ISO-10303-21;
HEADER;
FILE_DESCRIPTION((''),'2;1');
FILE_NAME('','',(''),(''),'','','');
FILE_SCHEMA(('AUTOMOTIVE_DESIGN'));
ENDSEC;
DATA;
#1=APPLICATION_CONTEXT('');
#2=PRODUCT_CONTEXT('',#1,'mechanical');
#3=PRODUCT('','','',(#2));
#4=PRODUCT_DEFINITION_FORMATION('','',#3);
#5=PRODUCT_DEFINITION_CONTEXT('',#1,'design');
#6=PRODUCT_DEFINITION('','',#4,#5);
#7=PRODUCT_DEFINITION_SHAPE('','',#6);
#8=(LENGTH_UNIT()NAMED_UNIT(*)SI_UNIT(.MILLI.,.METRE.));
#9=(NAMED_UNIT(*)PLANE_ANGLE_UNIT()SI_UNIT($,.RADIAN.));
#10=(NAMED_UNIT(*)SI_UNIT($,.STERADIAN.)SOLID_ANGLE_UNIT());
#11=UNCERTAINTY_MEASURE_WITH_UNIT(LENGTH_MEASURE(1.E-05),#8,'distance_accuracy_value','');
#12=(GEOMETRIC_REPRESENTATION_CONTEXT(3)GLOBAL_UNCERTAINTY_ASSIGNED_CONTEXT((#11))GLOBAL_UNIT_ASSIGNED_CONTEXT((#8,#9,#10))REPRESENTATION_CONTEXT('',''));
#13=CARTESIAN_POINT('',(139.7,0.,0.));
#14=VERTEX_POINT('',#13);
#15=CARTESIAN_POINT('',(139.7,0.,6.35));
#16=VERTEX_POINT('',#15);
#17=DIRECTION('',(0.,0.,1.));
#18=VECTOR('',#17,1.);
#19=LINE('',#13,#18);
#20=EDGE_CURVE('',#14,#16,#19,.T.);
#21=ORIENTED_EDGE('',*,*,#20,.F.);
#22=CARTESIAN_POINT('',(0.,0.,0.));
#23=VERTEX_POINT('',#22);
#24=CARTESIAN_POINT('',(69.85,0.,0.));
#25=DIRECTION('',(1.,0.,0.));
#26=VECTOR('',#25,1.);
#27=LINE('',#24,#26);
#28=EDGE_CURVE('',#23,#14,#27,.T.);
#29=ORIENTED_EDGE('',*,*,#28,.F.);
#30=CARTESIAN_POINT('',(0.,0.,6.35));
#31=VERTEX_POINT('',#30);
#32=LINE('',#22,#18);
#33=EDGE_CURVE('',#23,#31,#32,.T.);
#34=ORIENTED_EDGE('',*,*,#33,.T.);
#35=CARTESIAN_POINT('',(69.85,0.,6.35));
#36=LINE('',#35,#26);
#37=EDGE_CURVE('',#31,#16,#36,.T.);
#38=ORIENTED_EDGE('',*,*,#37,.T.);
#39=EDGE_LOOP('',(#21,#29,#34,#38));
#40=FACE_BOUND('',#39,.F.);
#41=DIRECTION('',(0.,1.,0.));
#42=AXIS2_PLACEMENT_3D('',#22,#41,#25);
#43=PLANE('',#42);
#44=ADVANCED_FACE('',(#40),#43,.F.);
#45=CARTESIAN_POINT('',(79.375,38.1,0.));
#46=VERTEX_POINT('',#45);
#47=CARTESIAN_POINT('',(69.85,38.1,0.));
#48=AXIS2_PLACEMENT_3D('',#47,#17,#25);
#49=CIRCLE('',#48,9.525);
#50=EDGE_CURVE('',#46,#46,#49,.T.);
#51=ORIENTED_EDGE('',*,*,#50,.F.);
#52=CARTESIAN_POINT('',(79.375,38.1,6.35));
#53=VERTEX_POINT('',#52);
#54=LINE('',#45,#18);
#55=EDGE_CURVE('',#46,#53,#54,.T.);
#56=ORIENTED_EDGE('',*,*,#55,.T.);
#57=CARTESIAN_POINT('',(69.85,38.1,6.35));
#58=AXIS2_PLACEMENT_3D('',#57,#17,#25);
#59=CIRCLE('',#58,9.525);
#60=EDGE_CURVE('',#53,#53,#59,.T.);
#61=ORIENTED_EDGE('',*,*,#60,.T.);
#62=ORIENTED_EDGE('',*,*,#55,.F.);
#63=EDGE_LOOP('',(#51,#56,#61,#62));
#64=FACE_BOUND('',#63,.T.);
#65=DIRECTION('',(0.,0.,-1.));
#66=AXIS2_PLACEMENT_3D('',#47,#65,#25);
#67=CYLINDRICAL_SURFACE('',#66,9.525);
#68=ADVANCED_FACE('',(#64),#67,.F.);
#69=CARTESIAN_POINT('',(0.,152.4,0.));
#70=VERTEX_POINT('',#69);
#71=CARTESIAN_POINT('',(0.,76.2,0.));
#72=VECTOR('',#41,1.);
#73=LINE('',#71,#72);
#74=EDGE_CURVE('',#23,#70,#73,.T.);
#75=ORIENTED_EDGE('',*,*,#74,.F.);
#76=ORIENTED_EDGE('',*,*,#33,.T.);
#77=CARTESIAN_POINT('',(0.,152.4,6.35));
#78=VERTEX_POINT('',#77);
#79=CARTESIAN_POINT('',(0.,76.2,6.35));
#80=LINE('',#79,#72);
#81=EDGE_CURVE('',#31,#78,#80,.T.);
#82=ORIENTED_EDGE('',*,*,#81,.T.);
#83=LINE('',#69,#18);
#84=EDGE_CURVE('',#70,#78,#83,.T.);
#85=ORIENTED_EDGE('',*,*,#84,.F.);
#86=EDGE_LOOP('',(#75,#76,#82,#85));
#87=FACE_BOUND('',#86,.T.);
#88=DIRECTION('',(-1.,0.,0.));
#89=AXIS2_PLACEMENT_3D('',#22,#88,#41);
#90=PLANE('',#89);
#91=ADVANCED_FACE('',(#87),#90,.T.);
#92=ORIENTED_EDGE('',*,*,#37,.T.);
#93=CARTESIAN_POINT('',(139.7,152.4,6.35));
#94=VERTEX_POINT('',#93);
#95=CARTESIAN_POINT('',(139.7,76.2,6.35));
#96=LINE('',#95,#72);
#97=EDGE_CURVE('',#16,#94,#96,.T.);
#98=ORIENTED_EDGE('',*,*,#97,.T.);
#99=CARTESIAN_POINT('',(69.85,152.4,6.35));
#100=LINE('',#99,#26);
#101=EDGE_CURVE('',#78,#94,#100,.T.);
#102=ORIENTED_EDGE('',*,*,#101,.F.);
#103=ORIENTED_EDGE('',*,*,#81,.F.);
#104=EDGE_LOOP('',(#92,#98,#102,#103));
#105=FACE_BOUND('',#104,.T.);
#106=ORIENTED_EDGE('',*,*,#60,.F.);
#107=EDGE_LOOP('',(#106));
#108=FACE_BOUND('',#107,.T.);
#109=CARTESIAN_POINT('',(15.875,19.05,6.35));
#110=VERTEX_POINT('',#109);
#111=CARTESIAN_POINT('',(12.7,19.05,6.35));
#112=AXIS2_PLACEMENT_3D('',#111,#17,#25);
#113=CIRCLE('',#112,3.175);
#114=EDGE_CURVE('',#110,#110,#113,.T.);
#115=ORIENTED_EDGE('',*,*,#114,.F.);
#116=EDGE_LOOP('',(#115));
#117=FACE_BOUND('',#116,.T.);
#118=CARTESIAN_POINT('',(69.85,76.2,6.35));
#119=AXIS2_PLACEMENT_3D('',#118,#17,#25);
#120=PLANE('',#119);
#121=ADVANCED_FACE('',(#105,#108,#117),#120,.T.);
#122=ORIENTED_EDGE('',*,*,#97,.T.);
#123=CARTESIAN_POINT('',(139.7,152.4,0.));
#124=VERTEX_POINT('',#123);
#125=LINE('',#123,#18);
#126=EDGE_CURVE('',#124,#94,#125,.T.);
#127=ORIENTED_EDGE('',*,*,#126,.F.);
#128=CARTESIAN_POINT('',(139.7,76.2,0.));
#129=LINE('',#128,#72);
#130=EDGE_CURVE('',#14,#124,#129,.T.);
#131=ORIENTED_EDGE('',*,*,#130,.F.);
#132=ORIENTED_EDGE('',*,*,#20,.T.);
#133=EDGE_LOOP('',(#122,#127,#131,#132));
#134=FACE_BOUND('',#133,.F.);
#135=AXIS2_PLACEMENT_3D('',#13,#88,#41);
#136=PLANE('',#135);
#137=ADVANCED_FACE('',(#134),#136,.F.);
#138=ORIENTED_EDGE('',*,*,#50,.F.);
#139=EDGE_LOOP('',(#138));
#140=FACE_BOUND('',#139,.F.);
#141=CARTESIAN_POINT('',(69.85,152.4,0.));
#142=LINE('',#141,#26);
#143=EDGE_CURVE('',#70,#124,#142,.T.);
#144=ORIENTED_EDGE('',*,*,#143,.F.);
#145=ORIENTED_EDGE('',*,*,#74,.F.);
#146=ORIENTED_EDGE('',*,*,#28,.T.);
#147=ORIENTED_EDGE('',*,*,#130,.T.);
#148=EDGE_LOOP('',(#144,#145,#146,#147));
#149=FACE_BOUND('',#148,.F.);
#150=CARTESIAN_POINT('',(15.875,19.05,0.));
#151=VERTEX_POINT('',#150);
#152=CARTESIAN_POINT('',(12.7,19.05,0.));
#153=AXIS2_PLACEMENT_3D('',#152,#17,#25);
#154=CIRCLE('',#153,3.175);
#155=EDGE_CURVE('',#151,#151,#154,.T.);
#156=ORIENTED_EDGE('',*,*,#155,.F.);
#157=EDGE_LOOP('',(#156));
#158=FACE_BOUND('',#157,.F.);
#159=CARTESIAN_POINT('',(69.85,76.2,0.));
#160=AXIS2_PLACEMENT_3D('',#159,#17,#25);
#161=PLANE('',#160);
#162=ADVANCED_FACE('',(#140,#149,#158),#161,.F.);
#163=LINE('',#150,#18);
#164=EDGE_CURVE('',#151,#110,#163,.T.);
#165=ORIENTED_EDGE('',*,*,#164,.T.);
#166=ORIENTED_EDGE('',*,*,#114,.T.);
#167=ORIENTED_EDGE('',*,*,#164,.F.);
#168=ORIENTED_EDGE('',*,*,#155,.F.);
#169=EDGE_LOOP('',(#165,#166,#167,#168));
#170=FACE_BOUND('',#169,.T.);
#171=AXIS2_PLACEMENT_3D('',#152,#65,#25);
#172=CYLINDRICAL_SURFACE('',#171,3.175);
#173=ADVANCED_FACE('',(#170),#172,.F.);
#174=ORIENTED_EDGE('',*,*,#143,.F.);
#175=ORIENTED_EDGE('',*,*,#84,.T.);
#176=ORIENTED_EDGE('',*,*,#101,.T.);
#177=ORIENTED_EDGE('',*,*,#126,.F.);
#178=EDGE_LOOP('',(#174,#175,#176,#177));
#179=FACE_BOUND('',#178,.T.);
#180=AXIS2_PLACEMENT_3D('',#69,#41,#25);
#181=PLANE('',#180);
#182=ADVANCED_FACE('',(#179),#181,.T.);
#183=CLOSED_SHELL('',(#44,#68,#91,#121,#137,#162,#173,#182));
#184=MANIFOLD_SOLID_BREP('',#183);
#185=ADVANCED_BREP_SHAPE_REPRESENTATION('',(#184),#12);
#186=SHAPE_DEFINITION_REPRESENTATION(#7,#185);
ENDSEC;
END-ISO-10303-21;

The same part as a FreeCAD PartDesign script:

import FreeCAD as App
import Part
import Sketcher

V = App.Vector
Q = App.Units.Quantity

doc = App.newDocument("Part")
params = doc.addObject("Spreadsheet::Sheet", "Params")
for row, (alias, value) in enumerate([
    ("sketch1_diameter", "0.25 in"),
    ("sketch1_diameter2", "0.75 in"),
    ("sketch1_height", "6 in"),
    ("sketch1_width", "5.5 in"),
    ("pad1_length", "0.25 in"),
], start=1):
    params.set(f"A{row}", alias)
    params.set(f"B{row}", "=" + value)
    params.setAlias(f"B{row}", alias)

body = doc.addObject("PartDesign::Body", "Body")

sketch1 = body.newObject("Sketcher::SketchObject", "Sketch")
sketch1.AttachmentSupport = (doc.getObject("XY_Plane"), [""])
sketch1.MapMode = "FlatFace"
sketch1.addGeometry([
    Part.LineSegment(V(0, 152.4, 0), V(0, 0, 0)),
    Part.LineSegment(V(0, 0, 0), V(139.7, 0, 0)),
    Part.LineSegment(V(139.7, 0, 0), V(139.7, 152.4, 0)),
    Part.LineSegment(V(139.7, 152.4, 0), V(0, 152.4, 0)),
    Part.Circle(V(12.7, 19.05, 0), V(0, 0, 1), 3.175),
    Part.Circle(V(69.85, 38.1, 0), V(0, 0, 1), 9.525),
], False)
sketch1.addConstraint([
    Sketcher.Constraint("Coincident", 0, 2, 1, 1),
    Sketcher.Constraint("Coincident", 1, 2, 2, 1),
    Sketcher.Constraint("Coincident", 2, 2, 3, 1),
    Sketcher.Constraint("Coincident", 3, 2, 0, 1),
    Sketcher.Constraint("Vertical", 0),
    Sketcher.Constraint("Horizontal", 1),
    Sketcher.Constraint("Vertical", 2),
    Sketcher.Constraint("Horizontal", 3),
    Sketcher.Constraint("Coincident", 0, 2, -1, 1),
    Sketcher.Constraint("Diameter", 4, Q("0.25 in")),
    Sketcher.Constraint("Diameter", 5, Q("0.75 in")),
    Sketcher.Constraint("DistanceY", 0, 2, 0, 1, Q("6 in")),
    Sketcher.Constraint("DistanceX", 1, 1, 1, 2, Q("5.5 in")),
    Sketcher.Constraint("DistanceX", 4, 3, 1, 2, Q("5 in")),
    Sketcher.Constraint("DistanceY", -1, 1, 5, 3, Q("1.5 in")),
    Sketcher.Constraint("DistanceY", -1, 1, 4, 3, Q("0.75 in")),
    Sketcher.Constraint("DistanceX", -1, 1, 5, 3, Q("2.75 in")),
])
sketch1.setExpression("Constraints[9]", "Params.sketch1_diameter")
sketch1.setExpression("Constraints[10]", "Params.sketch1_diameter2")
sketch1.setExpression("Constraints[11]", "Params.sketch1_height")
sketch1.setExpression("Constraints[12]", "Params.sketch1_width")
pad1 = body.newObject("PartDesign::Pad", "Pad")
pad1.Profile = sketch1
pad1.setExpression("Length", "Params.pad1_length")

doc.recompute()
